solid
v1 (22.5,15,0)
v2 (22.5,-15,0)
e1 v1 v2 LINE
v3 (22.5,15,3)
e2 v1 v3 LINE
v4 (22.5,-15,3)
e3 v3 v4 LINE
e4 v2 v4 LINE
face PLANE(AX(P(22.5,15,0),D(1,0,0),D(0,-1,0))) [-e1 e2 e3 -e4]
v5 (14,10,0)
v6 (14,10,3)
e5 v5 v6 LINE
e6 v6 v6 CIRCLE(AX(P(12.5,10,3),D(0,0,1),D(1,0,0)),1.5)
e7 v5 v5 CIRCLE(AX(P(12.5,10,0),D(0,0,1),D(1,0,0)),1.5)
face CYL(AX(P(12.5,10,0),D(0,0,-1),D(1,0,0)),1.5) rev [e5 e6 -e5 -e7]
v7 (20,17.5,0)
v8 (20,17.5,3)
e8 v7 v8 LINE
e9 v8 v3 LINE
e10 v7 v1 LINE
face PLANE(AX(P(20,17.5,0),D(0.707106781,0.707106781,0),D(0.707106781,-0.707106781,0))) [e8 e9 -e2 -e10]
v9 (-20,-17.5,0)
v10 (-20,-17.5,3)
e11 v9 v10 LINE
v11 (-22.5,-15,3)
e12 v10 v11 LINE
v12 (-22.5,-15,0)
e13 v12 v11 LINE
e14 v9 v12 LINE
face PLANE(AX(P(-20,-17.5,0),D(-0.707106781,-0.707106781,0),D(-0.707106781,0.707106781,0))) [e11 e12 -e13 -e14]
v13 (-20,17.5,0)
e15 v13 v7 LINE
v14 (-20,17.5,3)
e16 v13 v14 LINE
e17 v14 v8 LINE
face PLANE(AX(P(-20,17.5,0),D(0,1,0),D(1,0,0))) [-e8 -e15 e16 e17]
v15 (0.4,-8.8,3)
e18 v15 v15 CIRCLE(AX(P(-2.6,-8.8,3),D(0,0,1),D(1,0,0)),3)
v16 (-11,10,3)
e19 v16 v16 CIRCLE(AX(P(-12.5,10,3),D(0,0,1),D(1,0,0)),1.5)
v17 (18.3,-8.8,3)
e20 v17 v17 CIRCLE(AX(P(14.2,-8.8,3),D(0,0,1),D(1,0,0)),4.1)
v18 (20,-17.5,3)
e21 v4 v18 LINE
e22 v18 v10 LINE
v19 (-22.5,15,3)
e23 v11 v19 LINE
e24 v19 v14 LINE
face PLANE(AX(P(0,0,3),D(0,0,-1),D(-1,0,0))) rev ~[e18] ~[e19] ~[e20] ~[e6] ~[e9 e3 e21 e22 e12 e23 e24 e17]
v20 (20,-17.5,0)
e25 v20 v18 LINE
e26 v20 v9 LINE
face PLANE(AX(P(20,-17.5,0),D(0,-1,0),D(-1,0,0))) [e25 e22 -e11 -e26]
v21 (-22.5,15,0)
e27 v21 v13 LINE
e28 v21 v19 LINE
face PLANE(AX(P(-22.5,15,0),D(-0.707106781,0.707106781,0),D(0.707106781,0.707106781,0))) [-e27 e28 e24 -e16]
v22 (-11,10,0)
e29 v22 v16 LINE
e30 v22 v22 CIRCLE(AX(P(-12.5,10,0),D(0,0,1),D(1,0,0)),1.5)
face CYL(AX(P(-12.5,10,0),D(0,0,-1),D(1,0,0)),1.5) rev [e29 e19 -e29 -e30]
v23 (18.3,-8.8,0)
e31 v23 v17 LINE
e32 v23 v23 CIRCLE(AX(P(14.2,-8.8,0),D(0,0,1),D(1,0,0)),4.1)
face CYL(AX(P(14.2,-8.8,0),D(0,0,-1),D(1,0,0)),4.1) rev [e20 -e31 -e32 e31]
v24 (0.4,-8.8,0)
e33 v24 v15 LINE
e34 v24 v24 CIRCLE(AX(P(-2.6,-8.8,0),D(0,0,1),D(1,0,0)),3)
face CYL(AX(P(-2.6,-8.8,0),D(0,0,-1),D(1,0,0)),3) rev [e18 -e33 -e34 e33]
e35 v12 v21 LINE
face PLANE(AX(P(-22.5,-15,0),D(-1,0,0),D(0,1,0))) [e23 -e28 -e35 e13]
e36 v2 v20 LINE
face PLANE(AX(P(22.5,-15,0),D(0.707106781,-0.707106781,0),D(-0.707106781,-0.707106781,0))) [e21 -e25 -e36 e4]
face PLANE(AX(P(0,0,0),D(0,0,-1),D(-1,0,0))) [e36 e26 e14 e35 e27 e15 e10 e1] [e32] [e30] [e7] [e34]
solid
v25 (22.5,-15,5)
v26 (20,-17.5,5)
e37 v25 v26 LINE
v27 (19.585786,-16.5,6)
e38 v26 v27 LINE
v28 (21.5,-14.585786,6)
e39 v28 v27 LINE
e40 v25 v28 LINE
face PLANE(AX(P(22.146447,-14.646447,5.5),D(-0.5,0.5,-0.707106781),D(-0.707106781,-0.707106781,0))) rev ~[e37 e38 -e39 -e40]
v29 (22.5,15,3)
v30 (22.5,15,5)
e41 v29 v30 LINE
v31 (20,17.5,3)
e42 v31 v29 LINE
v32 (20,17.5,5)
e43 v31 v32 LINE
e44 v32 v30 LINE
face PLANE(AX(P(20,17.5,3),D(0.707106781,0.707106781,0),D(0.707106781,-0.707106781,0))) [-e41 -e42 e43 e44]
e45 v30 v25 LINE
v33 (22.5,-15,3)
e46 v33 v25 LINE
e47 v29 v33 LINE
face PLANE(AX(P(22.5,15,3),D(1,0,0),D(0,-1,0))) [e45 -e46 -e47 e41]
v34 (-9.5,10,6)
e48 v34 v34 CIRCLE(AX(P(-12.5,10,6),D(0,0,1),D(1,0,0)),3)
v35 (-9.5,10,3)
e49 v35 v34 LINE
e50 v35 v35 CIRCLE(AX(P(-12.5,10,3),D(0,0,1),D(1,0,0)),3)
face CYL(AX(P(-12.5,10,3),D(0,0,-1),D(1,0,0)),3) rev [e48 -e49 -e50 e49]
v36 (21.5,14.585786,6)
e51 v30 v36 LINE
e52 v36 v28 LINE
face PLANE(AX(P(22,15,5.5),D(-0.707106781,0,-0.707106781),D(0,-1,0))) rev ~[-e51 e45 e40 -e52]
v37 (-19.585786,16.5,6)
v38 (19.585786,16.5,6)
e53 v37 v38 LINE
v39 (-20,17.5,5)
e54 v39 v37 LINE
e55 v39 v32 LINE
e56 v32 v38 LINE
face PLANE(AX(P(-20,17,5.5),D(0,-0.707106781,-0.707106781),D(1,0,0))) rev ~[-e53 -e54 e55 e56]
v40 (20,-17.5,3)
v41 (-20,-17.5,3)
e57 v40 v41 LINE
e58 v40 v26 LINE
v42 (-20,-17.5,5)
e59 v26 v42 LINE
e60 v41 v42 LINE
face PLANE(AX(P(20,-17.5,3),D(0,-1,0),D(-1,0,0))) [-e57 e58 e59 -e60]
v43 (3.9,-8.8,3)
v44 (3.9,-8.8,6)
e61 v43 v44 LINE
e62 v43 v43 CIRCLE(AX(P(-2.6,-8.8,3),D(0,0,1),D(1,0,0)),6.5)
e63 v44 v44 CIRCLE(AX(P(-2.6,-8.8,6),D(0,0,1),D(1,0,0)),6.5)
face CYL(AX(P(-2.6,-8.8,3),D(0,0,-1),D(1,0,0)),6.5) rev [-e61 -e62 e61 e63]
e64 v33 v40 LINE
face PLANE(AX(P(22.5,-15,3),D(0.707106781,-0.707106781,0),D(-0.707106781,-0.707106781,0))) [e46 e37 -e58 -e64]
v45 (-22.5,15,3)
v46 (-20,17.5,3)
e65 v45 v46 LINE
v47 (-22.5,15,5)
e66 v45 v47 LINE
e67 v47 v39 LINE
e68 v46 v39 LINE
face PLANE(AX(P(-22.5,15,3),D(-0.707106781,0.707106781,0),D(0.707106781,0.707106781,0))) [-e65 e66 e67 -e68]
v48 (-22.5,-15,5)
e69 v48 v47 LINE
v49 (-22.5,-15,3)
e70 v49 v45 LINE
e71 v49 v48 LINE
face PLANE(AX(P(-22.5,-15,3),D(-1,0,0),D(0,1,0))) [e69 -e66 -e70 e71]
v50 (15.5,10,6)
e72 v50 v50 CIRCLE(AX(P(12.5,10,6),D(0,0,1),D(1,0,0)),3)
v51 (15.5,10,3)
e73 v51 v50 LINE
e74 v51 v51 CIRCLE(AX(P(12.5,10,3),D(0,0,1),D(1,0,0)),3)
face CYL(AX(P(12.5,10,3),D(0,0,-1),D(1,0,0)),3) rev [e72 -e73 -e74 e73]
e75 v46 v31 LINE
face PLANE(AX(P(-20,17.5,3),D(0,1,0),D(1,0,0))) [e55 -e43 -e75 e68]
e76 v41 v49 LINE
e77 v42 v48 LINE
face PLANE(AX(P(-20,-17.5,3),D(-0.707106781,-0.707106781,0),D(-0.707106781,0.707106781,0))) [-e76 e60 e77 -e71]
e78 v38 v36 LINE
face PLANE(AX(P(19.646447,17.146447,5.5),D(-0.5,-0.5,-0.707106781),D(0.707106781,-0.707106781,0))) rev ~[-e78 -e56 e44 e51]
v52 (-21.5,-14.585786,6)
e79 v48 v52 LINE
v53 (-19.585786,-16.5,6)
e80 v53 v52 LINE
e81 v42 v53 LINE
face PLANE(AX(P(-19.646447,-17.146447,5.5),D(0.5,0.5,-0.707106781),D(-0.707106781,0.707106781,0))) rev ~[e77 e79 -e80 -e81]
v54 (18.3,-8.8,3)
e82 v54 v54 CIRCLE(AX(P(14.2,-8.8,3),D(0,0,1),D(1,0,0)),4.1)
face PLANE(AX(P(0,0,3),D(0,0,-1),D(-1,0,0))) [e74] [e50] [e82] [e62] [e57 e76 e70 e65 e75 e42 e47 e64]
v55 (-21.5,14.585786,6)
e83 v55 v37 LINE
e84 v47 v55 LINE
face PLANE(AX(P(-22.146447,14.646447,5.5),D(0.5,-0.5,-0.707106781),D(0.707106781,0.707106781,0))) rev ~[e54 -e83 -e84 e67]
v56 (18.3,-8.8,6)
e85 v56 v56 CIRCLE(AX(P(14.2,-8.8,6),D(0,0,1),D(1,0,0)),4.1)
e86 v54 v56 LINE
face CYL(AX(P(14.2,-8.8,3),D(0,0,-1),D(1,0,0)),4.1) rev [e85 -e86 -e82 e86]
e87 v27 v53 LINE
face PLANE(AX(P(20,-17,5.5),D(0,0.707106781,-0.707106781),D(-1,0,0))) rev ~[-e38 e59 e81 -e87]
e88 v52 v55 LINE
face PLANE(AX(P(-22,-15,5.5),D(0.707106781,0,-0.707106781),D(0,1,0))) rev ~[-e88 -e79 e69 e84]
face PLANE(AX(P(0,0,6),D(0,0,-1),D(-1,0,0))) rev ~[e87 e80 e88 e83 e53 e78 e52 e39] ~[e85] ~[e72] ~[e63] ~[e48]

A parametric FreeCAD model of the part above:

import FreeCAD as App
import Part
import Sketcher

V = App.Vector


def edges_at(feature, points):
    """Names of the edges that pass closest to the given points."""
    edges = feature.Shape.Edges
    near = lambda p: min(range(len(edges)), key=lambda i: edges[i].distToShape(Part.Vertex(*p))[0])
    return sorted({f"Edge{near(p) + 1}" for p in points})


def add_polygon(sketch, points):
    """Adds a closed chain of lines whose ends are joined by coincident constraints."""
    first, n = sketch.GeometryCount, len(points)
    for a, b in zip(points, points[1:] + points[:1]):
        sketch.addGeometry(Part.LineSegment(App.Vector(*a, 0), App.Vector(*b, 0)), False)
    for i in range(n):
        sketch.addConstraint(Sketcher.Constraint("Coincident", first + i, 2, first + (i + 1) % n, 1))

doc = App.newDocument("Part")
body = doc.addObject("PartDesign::Body", "Body")

# Sketch on XY plane
sketch1 = body.newObject("Sketcher::SketchObject", "Sketch")
sketch1.AttachmentSupport = (doc.getObject("XY_Plane"), [""])
sketch1.MapMode = "FlatFace"
add_polygon(sketch1, [(20, 17.5), (-20, 17.5), (-22.5, 15), (-22.5, -15), (-20, -17.5), (20, -17.5), (22.5, -15), (22.5, 15)])  # lines 0-7
sketch1.addGeometry(Part.Circle(V(14.2, -8.8, 0), V(0, 0, 1), 4.1), False)  # 8
sketch1.addGeometry(Part.Circle(V(-2.6, -8.8, 0), V(0, 0, 1), 3), False)  # 9
sketch1.addGeometry(Part.Circle(V(12.5, 10, 0), V(0, 0, 1), 1.5), False)  # 10
sketch1.addGeometry(Part.Circle(V(-12.5, 10, 0), V(0, 0, 1), 1.5), False)  # 11
sketch1.addConstraint([
    Sketcher.Constraint("Horizontal", 0),
    Sketcher.Constraint("Vertical", 2),
    Sketcher.Constraint("Horizontal", 4),
    Sketcher.Constraint("Vertical", 6),
    Sketcher.Constraint("Equal", 10, 11),
    Sketcher.Constraint("Symmetric", 0, 2, 4, 2, -1, 1),
    Sketcher.Constraint("Symmetric", 1, 2, 5, 2, -1, 1),
    Sketcher.Constraint("Symmetric", 10, 3, 11, 3, -2),
    Sketcher.Constraint("Perpendicular", 1, 3),
    Sketcher.Constraint("Perpendicular", 5, 7),
    Sketcher.Constraint("Horizontal", 8, 3, 9, 3),
    Sketcher.Constraint("Horizontal", 2, 2, 5, 2),
    Sketcher.Constraint("Horizontal", 1, 2, 6, 2),
    Sketcher.Constraint("Vertical", 0, 2, 3, 2),
    Sketcher.Constraint("Diameter", 9, 6.0),
    Sketcher.Constraint("Diameter", 10, 3.0),
    Sketcher.Constraint("Diameter", 8, 8.2),
    Sketcher.Constraint("DistanceX", 0, 2, 0, 1, 40.0),
    Sketcher.Constraint("DistanceY", 2, 2, 2, 1, 30.0),
    Sketcher.Constraint("DistanceY", -1, 1, 10, 3, 10.0),
    Sketcher.Constraint("DistanceX", 11, 3, 10, 3, 25.0),
    Sketcher.Constraint("DistanceX", 1, 2, 11, 3, 10.0),
    Sketcher.Constraint("DistanceX", -1, 1, 8, 3, 14.2),
    Sketcher.Constraint("DistanceY", 8, 3, -1, 1, 8.8),
    Sketcher.Constraint("DistanceX", 9, 3, -1, 1, 2.6),
])
pad1 = body.newObject("PartDesign::Pad", "Pad")
pad1.Profile = sketch1
pad1.Length = 3
body2 = doc.addObject("PartDesign::Body", "Body001")

# Sketch on XY plane
sketch2 = body2.newObject("Sketcher::SketchObject", "Sketch001")
sketch2.AttachmentSupport = (doc.getObject("XY_Plane001"), [""])
sketch2.MapMode = "FlatFace"
sketch2.AttachmentOffset = App.Placement(V(0, 0, 3), App.Rotation())
add_polygon(sketch2, [(20, 17.5), (-20, 17.5), (-22.5, 15), (-22.5, -15), (-20, -17.5), (20, -17.5), (22.5, -15), (22.5, 15)])  # lines 0-7
sketch2.addGeometry(Part.Circle(V(14.2, -8.8, 0), V(0, 0, 1), 4.1), False)  # 8
sketch2.addGeometry(Part.Circle(V(-2.6, -8.8, 0), V(0, 0, 1), 6.5), False)  # 9
sketch2.addGeometry(Part.Circle(V(12.5, 10, 0), V(0, 0, 1), 3), False)  # 10
sketch2.addGeometry(Part.Circle(V(-12.5, 10, 0), V(0, 0, 1), 3), False)  # 11
sketch2.addConstraint([
    Sketcher.Constraint("Horizontal", 0),
    Sketcher.Constraint("Vertical", 2),
    Sketcher.Constraint("Horizontal", 4),
    Sketcher.Constraint("Vertical", 6),
    Sketcher.Constraint("Equal", 10, 11),
    Sketcher.Constraint("Symmetric", 0, 2, 4, 2, -1, 1),
    Sketcher.Constraint("Symmetric", 1, 2, 5, 2, -1, 1),
    Sketcher.Constraint("Symmetric", 10, 3, 11, 3, -2),
    Sketcher.Constraint("Perpendicular", 1, 3),
    Sketcher.Constraint("Perpendicular", 5, 7),
    Sketcher.Constraint("Horizontal", 8, 3, 9, 3),
    Sketcher.Constraint("Horizontal", 2, 2, 5, 2),
    Sketcher.Constraint("Horizontal", 1, 2, 6, 2),
    Sketcher.Constraint("Vertical", 0, 2, 3, 2),
    Sketcher.Constraint("Diameter", 9, 13.0),
    Sketcher.Constraint("Diameter", 10, 6.0),
    Sketcher.Constraint("Diameter", 8, 8.2),
    Sketcher.Constraint("DistanceX", 0, 2, 0, 1, 40.0),
    Sketcher.Constraint("DistanceY", 2, 2, 2, 1, 30.0),
    Sketcher.Constraint("DistanceY", -1, 1, 10, 3, 10.0),
    Sketcher.Constraint("DistanceX", 11, 3, 10, 3, 25.0),
    Sketcher.Constraint("DistanceX", 1, 2, 11, 3, 10.0),
    Sketcher.Constraint("DistanceX", -1, 1, 8, 3, 14.2),
    Sketcher.Constraint("DistanceY", 8, 3, -1, 1, 8.8),
    Sketcher.Constraint("DistanceX", 9, 3, -1, 1, 2.6),
])
pad2 = body2.newObject("PartDesign::Pad", "Pad001")
pad2.Profile = sketch2
pad2.Length = 3
doc.recompute()

chamfer = body2.newObject("PartDesign::Chamfer", "Chamfer")
chamfer.Base = (pad2, edges_at(pad2, [
    (0, -17.5, 6),
    (21.25, -16.25, 6),
    (22.5, 0, 6),
    (0, 17.5, 6),
    (21.25, 16.25, 6),
    (-21.25, 16.25, 6),
    (-22.5, 0, 6),
    (-21.25, -16.25, 6),
]))
chamfer.Size = 1

doc.recompute()
